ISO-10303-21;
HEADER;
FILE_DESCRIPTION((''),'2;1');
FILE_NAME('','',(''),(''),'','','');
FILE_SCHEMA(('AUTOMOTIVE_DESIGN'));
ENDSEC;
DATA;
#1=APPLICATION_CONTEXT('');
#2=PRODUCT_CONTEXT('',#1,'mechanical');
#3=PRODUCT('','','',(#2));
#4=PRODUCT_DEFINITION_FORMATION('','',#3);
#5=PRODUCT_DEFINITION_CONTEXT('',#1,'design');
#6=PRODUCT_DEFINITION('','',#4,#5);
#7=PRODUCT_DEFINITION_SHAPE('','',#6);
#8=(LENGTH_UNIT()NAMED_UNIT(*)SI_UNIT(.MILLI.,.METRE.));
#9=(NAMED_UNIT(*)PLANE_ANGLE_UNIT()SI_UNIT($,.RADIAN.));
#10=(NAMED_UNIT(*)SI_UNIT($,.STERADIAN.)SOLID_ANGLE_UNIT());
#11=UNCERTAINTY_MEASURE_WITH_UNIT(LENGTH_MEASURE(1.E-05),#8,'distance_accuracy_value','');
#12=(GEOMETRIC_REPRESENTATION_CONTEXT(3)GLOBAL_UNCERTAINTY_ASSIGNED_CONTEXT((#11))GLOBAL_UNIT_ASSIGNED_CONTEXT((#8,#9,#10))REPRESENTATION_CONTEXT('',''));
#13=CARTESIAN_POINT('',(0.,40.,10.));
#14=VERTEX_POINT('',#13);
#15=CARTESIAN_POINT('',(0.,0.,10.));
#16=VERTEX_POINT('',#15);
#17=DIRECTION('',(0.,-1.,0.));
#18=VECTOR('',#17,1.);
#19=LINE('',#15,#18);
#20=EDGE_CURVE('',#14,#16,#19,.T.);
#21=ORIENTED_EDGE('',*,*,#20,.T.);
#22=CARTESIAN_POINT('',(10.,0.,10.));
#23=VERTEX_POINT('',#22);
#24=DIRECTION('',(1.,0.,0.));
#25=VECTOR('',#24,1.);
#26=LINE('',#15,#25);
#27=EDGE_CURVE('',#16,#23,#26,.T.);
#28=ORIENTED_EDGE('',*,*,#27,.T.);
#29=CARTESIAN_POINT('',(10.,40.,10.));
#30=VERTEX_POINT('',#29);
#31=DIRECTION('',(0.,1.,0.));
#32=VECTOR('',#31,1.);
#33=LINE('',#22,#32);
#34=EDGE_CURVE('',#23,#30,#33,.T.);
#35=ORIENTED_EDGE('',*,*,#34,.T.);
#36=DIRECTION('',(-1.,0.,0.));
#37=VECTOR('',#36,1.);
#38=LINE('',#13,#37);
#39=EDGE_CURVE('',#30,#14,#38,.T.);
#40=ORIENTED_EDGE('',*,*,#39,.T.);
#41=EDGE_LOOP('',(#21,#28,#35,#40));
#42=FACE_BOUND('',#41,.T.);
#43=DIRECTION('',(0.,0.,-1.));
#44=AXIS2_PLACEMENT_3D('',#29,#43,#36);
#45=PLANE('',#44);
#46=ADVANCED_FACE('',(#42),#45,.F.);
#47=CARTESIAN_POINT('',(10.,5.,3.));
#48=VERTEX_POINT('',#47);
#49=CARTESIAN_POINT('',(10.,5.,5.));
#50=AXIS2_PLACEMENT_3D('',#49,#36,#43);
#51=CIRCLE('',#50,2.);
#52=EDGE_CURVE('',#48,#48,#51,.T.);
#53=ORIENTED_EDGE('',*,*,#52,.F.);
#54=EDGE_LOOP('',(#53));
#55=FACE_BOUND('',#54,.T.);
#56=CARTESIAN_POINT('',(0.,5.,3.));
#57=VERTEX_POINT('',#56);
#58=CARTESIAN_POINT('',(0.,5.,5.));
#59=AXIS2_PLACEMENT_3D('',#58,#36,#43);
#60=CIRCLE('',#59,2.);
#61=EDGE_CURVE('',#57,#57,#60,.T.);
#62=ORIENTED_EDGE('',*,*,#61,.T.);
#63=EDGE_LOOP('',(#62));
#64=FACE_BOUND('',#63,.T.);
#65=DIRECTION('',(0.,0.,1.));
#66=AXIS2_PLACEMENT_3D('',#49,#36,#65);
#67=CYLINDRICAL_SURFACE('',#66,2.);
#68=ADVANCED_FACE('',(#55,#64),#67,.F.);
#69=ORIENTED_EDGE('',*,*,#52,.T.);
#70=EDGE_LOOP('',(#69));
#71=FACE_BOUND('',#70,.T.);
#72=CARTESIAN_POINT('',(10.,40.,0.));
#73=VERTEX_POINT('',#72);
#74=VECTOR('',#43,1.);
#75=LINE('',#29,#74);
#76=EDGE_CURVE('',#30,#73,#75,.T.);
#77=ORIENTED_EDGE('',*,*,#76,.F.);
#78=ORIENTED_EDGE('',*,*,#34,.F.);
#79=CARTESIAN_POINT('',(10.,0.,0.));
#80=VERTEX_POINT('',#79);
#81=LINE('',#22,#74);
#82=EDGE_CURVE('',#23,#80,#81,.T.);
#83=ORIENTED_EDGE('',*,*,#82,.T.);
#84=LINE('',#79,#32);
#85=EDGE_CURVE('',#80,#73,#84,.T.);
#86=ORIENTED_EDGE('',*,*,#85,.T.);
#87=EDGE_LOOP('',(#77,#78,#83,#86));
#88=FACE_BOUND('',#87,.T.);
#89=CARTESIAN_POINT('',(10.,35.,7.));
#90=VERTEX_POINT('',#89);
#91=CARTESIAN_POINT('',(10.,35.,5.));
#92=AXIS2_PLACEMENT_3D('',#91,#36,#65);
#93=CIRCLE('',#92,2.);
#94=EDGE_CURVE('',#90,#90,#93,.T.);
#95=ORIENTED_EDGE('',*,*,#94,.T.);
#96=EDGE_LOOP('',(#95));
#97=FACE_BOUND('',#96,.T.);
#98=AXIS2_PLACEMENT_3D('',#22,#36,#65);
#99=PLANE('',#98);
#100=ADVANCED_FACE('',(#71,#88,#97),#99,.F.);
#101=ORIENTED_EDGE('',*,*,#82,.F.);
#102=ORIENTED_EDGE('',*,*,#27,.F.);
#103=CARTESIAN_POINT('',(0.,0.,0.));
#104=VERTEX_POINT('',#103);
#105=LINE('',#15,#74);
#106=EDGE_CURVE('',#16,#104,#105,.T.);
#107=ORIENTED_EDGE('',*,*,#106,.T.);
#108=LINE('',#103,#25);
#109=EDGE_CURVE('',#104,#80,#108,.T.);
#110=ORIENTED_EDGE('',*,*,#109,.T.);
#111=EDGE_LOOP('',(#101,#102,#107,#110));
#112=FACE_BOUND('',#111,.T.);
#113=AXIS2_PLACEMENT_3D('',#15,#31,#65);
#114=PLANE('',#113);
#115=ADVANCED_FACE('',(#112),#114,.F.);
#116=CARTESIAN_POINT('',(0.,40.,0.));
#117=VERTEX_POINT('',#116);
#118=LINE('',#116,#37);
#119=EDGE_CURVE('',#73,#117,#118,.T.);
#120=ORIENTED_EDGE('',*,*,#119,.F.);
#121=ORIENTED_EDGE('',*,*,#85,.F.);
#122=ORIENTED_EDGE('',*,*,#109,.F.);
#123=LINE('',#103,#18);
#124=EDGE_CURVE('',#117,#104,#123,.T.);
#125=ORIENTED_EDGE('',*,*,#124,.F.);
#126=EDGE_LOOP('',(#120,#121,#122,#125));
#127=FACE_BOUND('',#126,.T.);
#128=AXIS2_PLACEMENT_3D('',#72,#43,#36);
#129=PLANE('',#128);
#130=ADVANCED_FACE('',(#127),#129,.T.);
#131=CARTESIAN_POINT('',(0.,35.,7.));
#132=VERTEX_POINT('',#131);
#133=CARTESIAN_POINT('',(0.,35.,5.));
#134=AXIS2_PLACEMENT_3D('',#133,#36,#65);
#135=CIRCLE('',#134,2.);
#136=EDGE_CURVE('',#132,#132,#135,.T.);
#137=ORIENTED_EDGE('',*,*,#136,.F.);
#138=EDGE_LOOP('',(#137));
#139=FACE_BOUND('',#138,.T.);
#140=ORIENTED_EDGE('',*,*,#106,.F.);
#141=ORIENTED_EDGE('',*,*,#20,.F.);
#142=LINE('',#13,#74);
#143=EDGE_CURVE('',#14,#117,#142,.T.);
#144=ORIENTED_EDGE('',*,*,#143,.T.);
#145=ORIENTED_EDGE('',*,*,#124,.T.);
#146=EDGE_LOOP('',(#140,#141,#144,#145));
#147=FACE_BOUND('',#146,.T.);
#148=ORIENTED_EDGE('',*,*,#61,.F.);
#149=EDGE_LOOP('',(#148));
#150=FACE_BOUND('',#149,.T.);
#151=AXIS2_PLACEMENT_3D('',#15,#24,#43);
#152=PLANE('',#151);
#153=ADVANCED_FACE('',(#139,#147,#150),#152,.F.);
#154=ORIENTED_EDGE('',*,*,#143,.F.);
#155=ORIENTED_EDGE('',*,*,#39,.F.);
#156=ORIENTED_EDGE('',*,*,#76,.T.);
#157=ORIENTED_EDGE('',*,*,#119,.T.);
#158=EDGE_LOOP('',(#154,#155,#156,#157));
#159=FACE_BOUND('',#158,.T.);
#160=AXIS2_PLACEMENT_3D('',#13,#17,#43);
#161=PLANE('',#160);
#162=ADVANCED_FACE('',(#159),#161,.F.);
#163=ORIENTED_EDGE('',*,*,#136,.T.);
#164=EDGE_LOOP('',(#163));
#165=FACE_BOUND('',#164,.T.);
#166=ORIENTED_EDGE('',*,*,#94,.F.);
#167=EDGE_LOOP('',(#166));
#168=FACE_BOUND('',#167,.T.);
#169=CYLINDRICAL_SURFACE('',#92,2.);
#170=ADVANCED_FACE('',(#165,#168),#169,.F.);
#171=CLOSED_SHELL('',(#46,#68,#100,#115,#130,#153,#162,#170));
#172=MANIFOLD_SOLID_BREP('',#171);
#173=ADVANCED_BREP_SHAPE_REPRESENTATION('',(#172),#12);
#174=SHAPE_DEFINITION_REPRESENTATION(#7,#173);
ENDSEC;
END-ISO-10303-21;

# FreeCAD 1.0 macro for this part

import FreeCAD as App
import Part
import Sketcher

V = App.Vector
Q = App.Units.Quantity

doc = App.newDocument("Part")
params = doc.addObject("Spreadsheet::Sheet", "Params")
for row, (alias, value) in enumerate([
    ("sketch1_width", "10 mm"),
    ("sketch1_height", "40 mm"),
    ("pad1_length", "10 mm"),
    ("sketch2_diameter", "4 mm"),
], start=1):
    params.set(f"A{row}", alias)
    params.set(f"B{row}", "=" + value)
    params.setAlias(f"B{row}", alias)

body = doc.addObject("PartDesign::Body", "Body")

sketch1 = body.newObject("Sketcher::SketchObject", "Sketch")
sketch1.AttachmentSupport = (doc.getObject("XY_Plane"), [""])
sketch1.MapMode = "FlatFace"
sketch1.addGeometry([
    Part.LineSegment(V(0, 40, 0), V(0, 0, 0)),
    Part.LineSegment(V(0, 0, 0), V(10, 0, 0)),
    Part.LineSegment(V(10, 0, 0), V(10, 40, 0)),
    Part.LineSegment(V(10, 40, 0), V(0, 40, 0)),
], False)
sketch1.addConstraint([
    Sketcher.Constraint("Coincident", 0, 2, 1, 1),
    Sketcher.Constraint("Coincident", 1, 2, 2, 1),
    Sketcher.Constraint("Coincident", 2, 2, 3, 1),
    Sketcher.Constraint("Coincident", 3, 2, 0, 1),
    Sketcher.Constraint("Vertical", 0),
    Sketcher.Constraint("Horizontal", 1),
    Sketcher.Constraint("Vertical", 2),
    Sketcher.Constraint("Horizontal", 3),
    Sketcher.Constraint("Coincident", 0, 2, -1, 1),
    Sketcher.Constraint("DistanceX", 1, 1, 1, 2, Q("10 mm")),
    Sketcher.Constraint("DistanceY", 0, 2, 0, 1, Q("40 mm")),
])
sketch1.setExpression("Constraints[9]", "Params.sketch1_width")
sketch1.setExpression("Constraints[10]", "Params.sketch1_height")
pad1 = body.newObject("PartDesign::Pad", "Pad")
pad1.Profile = sketch1
pad1.setExpression("Length", "Params.pad1_length")

sketch2 = body.newObject("Sketcher::SketchObject", "Sketch001")
sketch2.AttachmentSupport = (doc.getObject("YZ_Plane"), [""])
sketch2.MapMode = "FlatFace"
sketch2.addGeometry([
    Part.Circle(V(35, 5, 0), V(0, 0, 1), 2),
    Part.Circle(V(5, 5, 0), V(0, 0, 1), 2),
], False)
sketch2.addConstraint([
    Sketcher.Constraint("Equal", 0, 1),
    Sketcher.Constraint("Horizontal", 0, 3, 1, 3),
    Sketcher.Constraint("Diameter", 0, Q("4 mm")),
    Sketcher.Constraint("DistanceX", -1, 1, 0, 3, Q("35 mm")),
    Sketcher.Constraint("DistanceY", -1, 1, 0, 3, Q("5 mm")),
    Sketcher.Constraint("DistanceX", -1, 1, 1, 3, Q("5 mm")),
])
sketch2.setExpression("Constraints[2]", "Params.sketch2_diameter")
pocket1 = body.newObject("PartDesign::Pocket", "Pocket")
pocket1.Profile = sketch2
pocket1.Type = "ThroughAll"
pocket1.Reversed = True

doc.recompute()
